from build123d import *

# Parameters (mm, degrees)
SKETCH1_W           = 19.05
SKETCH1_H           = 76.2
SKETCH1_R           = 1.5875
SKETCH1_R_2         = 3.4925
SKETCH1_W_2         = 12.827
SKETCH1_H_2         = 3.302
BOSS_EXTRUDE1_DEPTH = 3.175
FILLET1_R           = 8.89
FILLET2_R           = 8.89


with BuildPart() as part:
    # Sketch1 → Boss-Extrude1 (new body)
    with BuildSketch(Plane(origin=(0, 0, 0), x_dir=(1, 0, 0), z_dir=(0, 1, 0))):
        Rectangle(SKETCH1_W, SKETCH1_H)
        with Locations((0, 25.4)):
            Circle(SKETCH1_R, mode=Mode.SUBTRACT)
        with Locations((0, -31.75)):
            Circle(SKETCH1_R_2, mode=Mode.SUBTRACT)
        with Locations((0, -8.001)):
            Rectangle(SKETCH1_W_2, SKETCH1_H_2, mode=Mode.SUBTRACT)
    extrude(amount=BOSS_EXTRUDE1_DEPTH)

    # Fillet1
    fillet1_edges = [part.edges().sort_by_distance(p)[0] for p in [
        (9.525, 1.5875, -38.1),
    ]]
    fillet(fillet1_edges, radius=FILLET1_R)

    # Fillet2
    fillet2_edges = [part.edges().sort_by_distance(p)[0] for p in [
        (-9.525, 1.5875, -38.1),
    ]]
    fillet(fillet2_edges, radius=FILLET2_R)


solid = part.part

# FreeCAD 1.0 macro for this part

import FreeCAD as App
import Part
import Sketcher

V = App.Vector
Q = App.Units.Quantity


def edges_at(feature, points):
    """Names of the edges that pass closest to the given points."""
    edges = feature.Shape.Edges
    near = lambda p: min(range(len(edges)), key=lambda i: edges[i].distToShape(Part.Vertex(*p))[0])
    return sorted({f"Edge{near(p) + 1}" for p in points})

doc = App.newDocument("Part")
params = doc.addObject("Spreadsheet::Sheet", "Params")
for row, (alias, value) in enumerate([
    ("sketch1_height", "3 in"),
    ("sketch1_diameter", "0.275 in"),
    ("sketch1_diameter2", "0.125 in"),
    ("sketch1_width", "0.75 in"),
    ("sketch1_height2", "0.13 in"),
    ("pad1_length", "0.125 in"),
    ("fillet_radius", "0.35 in"),
    ("fillet2_radius", "0.35 in"),
], start=1):
    params.set(f"A{row}", alias)
    params.set(f"B{row}", "=" + value)
    params.setAlias(f"B{row}", alias)

body = doc.addObject("PartDesign::Body", "Body")

# Sketch on XZ plane
sketch1 = body.newObject("Sketcher::SketchObject", "Sketch")
sketch1.AttachmentSupport = (doc.getObject("XZ_Plane"), [""])
sketch1.MapMode = "FlatFace"
sketch1.addGeometry([
    Part.LineSegment(V(-9.5, -38.1, 0), V(-9.5, 38.1, 0)),  # 0
    Part.LineSegment(V(-9.5, 38.1, 0), V(9.5, 38.1, 0)),  # 1
    Part.LineSegment(V(9.5, 38.1, 0), V(9.5, -38.1, 0)),  # 2
    Part.LineSegment(V(9.5, -38.1, 0), V(-9.5, -38.1, 0)),  # 3
    Part.Circle(V(0, 31.8, 0), V(0, 0, 1), 3.5),  # 4
    Part.LineSegment(V(6.4, 9.7, 0), V(-6.4, 9.7, 0)),  # 5
    Part.LineSegment(V(-6.4, 9.7, 0), V(-6.4, 6.3, 0)),  # 6
    Part.LineSegment(V(-6.4, 6.3, 0), V(6.4, 6.3, 0)),  # 7
    Part.LineSegment(V(6.4, 6.3, 0), V(6.4, 9.7, 0)),  # 8
    Part.Circle(V(0, -25.4, 0), V(0, 0, 1), 1.6),  # 9
], False)
sketch1.addConstraint([
    Sketcher.Constraint("Coincident", 0, 2, 1, 1),
    Sketcher.Constraint("Coincident", 1, 2, 2, 1),
    Sketcher.Constraint("Coincident", 2, 2, 3, 1),
    Sketcher.Constraint("Coincident", 3, 2, 0, 1),
    Sketcher.Constraint("Coincident", 5, 2, 6, 1),
    Sketcher.Constraint("Coincident", 6, 2, 7, 1),
    Sketcher.Constraint("Coincident", 7, 2, 8, 1),
    Sketcher.Constraint("Coincident", 8, 2, 5, 1),
    Sketcher.Constraint("Vertical", 0),
    Sketcher.Constraint("Horizontal", 1),
    Sketcher.Constraint("Vertical", 2),
    Sketcher.Constraint("Horizontal", 3),
    Sketcher.Constraint("Horizontal", 5),
    Sketcher.Constraint("Vertical", 6),
    Sketcher.Constraint("Horizontal", 7),
    Sketcher.Constraint("Vertical", 8),
    Sketcher.Constraint("Symmetric", 0, 2, 2, 2, -1, 1),
    Sketcher.Constraint("PointOnObject", 4, 3, -2),
    Sketcher.Constraint("PointOnObject", 9, 3, -2),
    Sketcher.Constraint("DistanceY", 0, 1, 0, 2, Q("3 in")),
    Sketcher.Constraint("Diameter", 4, Q("0.275 in")),
    Sketcher.Constraint("Diameter", 9, Q("0.125 in")),
    Sketcher.Constraint("DistanceY", 9, 3, -1, 1, Q("1 in")),
    Sketcher.Constraint("DistanceY", 6, 2, 4, 3, Q("1 in")),
    Sketcher.Constraint("DistanceX", 1, 1, 1, 2, Q("0.75 in")),
    Sketcher.Constraint("DistanceY", 6, 2, 6, 1, Q("0.13 in")),
    Sketcher.Constraint("DistanceX", 5, 2, 5, 1, Q("0.505 in")),
    Sketcher.Constraint("DistanceY", -1, 1, 4, 3, Q("1.25 in")),
    Sketcher.Constraint("DistanceX", 5, 2, -1, 1, Q("0.2525 in")),
])
sketch1.setExpression("Constraints[19]", "Params.sketch1_height")
sketch1.setExpression("Constraints[20]", "Params.sketch1_diameter")
sketch1.setExpression("Constraints[21]", "Params.sketch1_diameter2")
sketch1.setExpression("Constraints[24]", "Params.sketch1_width")
sketch1.setExpression("Constraints[25]", "Params.sketch1_height2")
pad1 = body.newObject("PartDesign::Pad", "Pad")
pad1.Profile = sketch1
pad1.setExpression("Length", "Params.pad1_length")
pad1.Reversed = True
doc.recompute()

fillet = body.newObject("PartDesign::Fillet", "Fillet")
fillet.Base = (pad1, edges_at(pad1, [(9.525, 1.587, -38.1)]))
fillet.setExpression("Radius", "Params.fillet_radius")
doc.recompute()

fillet2 = body.newObject("PartDesign::Fillet", "Fillet001")
fillet2.Base = (fillet, edges_at(fillet, [(-9.525, 1.587, -38.1)]))
fillet2.setExpression("Radius", "Params.fillet2_radius")

doc.recompute()
